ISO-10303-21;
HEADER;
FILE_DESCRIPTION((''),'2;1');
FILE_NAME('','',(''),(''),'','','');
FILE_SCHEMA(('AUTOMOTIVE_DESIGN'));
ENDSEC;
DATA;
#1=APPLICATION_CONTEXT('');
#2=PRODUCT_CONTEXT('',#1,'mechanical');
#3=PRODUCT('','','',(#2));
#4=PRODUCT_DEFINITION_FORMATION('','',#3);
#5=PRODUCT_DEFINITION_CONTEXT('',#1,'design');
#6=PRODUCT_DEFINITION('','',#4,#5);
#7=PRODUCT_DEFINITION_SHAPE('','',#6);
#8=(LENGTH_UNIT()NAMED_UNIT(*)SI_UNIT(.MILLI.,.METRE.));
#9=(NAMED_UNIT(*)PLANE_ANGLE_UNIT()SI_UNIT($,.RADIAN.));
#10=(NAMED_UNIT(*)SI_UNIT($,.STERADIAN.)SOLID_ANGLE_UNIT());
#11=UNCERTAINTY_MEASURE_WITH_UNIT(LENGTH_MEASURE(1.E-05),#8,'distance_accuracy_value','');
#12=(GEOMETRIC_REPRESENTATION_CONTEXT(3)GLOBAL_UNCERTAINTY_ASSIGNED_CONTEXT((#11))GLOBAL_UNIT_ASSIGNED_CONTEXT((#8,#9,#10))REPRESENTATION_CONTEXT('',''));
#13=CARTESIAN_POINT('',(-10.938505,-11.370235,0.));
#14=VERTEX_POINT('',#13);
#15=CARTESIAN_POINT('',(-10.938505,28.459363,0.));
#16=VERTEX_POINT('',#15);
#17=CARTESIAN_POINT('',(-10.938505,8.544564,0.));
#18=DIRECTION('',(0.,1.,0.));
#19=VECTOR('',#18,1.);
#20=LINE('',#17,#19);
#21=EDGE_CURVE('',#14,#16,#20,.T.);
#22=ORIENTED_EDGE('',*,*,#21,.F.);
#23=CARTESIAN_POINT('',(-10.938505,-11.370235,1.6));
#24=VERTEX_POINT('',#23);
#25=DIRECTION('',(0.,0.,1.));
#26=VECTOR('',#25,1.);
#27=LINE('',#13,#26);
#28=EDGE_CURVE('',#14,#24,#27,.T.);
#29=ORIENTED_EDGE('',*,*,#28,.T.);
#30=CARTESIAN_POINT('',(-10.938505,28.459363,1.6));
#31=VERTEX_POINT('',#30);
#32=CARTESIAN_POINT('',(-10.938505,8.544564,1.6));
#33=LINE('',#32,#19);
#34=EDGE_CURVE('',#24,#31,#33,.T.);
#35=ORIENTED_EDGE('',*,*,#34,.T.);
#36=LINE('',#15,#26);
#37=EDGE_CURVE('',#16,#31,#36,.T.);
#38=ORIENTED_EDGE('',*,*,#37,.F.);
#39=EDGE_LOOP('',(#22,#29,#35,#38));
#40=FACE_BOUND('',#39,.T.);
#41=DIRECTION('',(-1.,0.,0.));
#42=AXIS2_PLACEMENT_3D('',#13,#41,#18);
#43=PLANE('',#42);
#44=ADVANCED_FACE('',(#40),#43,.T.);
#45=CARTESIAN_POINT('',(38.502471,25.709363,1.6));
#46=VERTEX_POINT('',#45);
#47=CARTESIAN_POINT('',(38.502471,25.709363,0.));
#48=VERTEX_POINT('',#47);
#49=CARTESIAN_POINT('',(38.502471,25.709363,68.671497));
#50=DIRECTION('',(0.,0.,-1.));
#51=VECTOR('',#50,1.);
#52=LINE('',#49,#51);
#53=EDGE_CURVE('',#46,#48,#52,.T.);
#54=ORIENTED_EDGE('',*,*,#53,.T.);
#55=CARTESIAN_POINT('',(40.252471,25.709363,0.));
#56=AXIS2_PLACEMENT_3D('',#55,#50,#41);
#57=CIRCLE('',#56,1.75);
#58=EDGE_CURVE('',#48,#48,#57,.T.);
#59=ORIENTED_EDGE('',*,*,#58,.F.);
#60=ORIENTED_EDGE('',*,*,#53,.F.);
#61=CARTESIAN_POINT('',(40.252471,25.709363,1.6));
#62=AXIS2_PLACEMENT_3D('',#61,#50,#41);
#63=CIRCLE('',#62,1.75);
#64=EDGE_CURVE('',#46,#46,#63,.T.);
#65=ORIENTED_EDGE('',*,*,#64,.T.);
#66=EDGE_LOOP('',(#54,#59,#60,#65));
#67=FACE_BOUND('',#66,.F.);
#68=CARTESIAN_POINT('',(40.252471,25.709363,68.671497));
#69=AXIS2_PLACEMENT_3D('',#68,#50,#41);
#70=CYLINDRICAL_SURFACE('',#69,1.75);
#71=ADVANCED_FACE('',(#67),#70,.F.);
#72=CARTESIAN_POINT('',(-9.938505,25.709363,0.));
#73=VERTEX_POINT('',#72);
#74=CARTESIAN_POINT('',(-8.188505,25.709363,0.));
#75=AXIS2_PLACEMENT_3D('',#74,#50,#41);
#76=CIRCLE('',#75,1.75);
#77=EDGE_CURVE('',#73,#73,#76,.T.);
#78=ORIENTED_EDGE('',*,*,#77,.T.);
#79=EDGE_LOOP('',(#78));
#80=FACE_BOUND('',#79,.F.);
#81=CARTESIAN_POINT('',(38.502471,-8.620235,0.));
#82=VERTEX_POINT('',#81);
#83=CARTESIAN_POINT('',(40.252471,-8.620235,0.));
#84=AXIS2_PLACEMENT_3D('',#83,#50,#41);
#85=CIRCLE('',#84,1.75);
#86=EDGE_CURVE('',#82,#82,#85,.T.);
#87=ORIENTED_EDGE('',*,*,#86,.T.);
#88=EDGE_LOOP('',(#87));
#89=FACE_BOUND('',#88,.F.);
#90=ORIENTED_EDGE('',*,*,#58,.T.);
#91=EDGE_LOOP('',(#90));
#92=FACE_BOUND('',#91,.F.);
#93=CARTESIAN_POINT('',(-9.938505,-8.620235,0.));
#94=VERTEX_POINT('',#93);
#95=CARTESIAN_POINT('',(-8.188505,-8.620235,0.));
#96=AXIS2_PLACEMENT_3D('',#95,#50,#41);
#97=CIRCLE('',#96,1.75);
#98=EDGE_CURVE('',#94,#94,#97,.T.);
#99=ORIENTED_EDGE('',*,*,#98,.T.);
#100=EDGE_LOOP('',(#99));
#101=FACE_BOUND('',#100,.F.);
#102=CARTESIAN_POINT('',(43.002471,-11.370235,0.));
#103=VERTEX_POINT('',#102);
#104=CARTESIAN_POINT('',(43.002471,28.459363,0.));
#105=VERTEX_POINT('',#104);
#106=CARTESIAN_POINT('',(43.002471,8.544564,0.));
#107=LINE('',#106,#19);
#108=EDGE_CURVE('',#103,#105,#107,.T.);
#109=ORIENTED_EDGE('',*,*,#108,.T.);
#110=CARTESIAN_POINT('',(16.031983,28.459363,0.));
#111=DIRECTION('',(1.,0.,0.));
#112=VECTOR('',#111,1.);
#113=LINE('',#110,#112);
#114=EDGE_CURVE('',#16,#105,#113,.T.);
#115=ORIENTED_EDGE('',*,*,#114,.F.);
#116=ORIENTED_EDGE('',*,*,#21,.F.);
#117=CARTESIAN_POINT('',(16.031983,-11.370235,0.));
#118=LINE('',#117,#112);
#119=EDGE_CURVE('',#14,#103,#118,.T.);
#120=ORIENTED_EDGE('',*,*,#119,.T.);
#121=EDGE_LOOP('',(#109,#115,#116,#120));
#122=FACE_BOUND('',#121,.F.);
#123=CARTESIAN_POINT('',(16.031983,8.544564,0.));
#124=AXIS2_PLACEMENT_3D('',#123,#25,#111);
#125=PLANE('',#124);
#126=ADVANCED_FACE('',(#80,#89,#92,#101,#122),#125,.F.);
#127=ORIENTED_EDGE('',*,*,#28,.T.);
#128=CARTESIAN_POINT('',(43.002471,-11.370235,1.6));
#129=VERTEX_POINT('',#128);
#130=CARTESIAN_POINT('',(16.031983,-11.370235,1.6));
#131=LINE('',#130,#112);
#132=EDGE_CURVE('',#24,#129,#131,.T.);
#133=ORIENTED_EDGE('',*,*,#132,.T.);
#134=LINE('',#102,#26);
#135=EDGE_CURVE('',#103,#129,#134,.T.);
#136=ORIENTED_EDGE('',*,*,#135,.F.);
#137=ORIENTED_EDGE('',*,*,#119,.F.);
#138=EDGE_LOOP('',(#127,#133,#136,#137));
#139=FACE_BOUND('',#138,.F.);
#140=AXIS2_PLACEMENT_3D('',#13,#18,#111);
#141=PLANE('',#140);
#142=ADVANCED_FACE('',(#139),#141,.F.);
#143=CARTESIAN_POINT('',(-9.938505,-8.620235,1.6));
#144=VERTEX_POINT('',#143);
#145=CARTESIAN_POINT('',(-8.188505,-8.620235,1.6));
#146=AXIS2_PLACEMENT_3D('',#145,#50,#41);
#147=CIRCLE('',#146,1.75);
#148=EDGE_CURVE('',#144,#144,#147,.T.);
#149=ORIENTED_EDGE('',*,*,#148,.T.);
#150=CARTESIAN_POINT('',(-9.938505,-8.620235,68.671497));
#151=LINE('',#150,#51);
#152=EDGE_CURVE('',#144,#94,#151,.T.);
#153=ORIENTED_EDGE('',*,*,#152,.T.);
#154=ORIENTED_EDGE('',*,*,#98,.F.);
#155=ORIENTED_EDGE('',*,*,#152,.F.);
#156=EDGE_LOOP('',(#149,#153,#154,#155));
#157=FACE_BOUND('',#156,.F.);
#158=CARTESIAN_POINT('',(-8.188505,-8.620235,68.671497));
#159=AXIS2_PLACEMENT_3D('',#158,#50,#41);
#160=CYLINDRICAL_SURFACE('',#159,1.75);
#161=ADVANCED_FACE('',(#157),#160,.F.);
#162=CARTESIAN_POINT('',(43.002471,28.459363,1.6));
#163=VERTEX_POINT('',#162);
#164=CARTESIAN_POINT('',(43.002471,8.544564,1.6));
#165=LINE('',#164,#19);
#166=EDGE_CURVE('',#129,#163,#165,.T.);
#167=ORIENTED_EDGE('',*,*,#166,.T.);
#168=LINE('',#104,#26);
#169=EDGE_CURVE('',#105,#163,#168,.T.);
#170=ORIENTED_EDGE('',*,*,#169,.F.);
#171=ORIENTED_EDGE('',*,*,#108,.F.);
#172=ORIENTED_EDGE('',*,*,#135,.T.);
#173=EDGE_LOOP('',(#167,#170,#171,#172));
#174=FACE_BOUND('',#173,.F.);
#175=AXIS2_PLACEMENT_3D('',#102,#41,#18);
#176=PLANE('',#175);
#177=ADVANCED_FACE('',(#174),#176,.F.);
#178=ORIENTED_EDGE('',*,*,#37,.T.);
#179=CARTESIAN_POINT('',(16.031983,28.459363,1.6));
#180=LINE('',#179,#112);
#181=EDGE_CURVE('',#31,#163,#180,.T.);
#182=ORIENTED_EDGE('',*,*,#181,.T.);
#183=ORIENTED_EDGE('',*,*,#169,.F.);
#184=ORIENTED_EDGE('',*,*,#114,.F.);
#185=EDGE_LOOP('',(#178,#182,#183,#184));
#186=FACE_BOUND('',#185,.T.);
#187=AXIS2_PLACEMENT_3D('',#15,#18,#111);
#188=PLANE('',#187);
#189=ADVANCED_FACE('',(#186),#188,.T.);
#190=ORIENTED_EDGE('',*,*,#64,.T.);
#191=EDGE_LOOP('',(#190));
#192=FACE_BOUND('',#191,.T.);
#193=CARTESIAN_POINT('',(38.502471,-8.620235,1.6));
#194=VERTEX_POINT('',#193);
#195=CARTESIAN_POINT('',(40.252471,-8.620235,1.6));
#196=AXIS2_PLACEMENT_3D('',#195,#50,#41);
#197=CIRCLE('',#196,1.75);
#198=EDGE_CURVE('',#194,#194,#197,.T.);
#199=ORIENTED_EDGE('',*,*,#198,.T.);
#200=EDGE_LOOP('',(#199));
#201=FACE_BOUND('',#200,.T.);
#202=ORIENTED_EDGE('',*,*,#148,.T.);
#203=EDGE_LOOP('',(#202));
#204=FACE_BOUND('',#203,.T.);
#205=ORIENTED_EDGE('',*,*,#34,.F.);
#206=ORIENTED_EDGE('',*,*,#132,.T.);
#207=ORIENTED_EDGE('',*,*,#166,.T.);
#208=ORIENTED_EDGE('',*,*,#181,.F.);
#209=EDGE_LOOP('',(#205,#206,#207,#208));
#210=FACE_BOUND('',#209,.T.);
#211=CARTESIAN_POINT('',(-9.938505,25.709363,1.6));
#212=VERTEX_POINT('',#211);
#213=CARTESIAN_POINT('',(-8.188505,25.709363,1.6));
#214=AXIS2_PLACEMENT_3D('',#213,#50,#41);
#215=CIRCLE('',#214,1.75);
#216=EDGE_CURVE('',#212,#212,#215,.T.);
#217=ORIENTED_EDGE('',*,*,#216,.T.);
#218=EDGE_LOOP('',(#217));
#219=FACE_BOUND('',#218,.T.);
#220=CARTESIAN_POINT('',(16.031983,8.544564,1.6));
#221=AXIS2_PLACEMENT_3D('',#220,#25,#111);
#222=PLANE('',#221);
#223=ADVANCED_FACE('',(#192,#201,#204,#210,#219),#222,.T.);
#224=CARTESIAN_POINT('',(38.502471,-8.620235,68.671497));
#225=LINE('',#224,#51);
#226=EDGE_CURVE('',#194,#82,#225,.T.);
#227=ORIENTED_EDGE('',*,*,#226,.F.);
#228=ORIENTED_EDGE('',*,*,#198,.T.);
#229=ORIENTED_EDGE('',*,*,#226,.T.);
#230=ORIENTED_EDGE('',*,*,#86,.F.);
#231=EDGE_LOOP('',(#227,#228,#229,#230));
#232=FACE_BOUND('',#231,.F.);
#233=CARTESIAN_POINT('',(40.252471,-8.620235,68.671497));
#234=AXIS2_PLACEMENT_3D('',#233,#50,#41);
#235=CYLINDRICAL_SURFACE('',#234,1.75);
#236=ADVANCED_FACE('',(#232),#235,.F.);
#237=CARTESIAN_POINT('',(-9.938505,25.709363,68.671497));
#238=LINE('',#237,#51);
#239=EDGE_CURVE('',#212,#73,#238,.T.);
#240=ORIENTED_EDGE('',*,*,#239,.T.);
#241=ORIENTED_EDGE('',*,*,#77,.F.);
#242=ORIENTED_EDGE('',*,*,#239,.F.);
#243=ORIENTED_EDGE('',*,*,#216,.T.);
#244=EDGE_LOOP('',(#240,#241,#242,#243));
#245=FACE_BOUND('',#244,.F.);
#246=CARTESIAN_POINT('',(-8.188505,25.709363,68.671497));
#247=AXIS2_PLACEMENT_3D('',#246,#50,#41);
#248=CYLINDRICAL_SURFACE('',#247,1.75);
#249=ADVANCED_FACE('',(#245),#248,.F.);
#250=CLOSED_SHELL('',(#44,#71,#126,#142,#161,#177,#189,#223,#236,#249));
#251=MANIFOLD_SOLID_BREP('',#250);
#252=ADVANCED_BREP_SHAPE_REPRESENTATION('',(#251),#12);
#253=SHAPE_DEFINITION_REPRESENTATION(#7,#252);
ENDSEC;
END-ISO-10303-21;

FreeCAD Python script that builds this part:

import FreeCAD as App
import Part
import Sketcher

V = App.Vector


def add_polygon(sketch, points):
    """Adds a closed chain of lines whose ends are joined by coincident constraints."""
    first, n = sketch.GeometryCount, len(points)
    for a, b in zip(points, points[1:] + points[:1]):
        sketch.addGeometry(Part.LineSegment(App.Vector(*a, 0), App.Vector(*b, 0)), False)
    for i in range(n):
        sketch.addConstraint(Sketcher.Constraint("Coincident", first + i, 2, first + (i + 1) % n, 1))

doc = App.newDocument("Part")
body = doc.addObject("PartDesign::Body", "Body")

# Sketch on XY plane
sketch1 = body.newObject("Sketcher::SketchObject", "Sketch")
sketch1.AttachmentSupport = (doc.getObject("XY_Plane"), [""])
sketch1.MapMode = "FlatFace"
add_polygon(sketch1, [(-11, 28), (-11, -11), (43, -11), (43, 28)])  # lines 0-3
sketch1.addConstraint(Sketcher.Constraint("Vertical", 0))
sketch1.addConstraint(Sketcher.Constraint("Horizontal", 1))
sketch1.addConstraint(Sketcher.Constraint("Vertical", 2))
sketch1.addConstraint(Sketcher.Constraint("Horizontal", 3))
sketch1.addConstraint(Sketcher.Constraint("DistanceX", 1, 1, 1, 2, 53.940976))
sketch1.addConstraint(Sketcher.Constraint("DistanceY", 0, 2, 0, 1, 39.829598))
sketch1.addConstraint(Sketcher.Constraint("DistanceX", -1, 1, 1, 2, 43.002471))
sketch1.addConstraint(Sketcher.Constraint("DistanceY", 0, 2, -1, 1, 11.370235))
pad1 = body.newObject("PartDesign::Pad", "Pad")
pad1.Profile = sketch1
pad1.Length = 1.6

# Sketch on XY plane
sketch2 = body.newObject("Sketcher::SketchObject", "Sketch001")
sketch2.AttachmentSupport = (doc.getObject("XY_Plane"), [""])
sketch2.MapMode = "FlatFace"
sketch2.AttachmentOffset = App.Placement(V(0, 0, 1.6), App.Rotation())
sketch2.addGeometry(Part.Circle(V(-8.2, 25.7, 0), V(0, 0, 1), 1.8), False)
sketch2.addGeometry(Part.Circle(V(-8.2, -8.6, 0), V(0, 0, 1), 1.8), False)
sketch2.addGeometry(Part.Circle(V(40.3, -8.6, 0), V(0, 0, 1), 1.8), False)
sketch2.addGeometry(Part.Circle(V(40.3, 25.7, 0), V(0, 0, 1), 1.8), False)
sketch2.addConstraint(Sketcher.Constraint("Equal", 0, 1))
sketch2.addConstraint(Sketcher.Constraint("Equal", 1, 2))
sketch2.addConstraint(Sketcher.Constraint("Equal", 2, 3))
sketch2.addConstraint(Sketcher.Constraint("Horizontal", 1, 3, 2, 3))
sketch2.addConstraint(Sketcher.Constraint("Horizontal", 0, 3, 3, 3))
sketch2.addConstraint(Sketcher.Constraint("Vertical", 0, 3, 1, 3))
sketch2.addConstraint(Sketcher.Constraint("Vertical", 2, 3, 3, 3))
sketch2.addConstraint(Sketcher.Constraint("Diameter", 0, 3.5))
sketch2.addConstraint(Sketcher.Constraint("DistanceX", -1, 1, 2, 3, 40.252471))
sketch2.addConstraint(Sketcher.Constraint("DistanceX", 0, 3, -1, 1, 8.188505))
sketch2.addConstraint(Sketcher.Constraint("DistanceY", -1, 1, 0, 3, 25.709363))
sketch2.addConstraint(Sketcher.Constraint("DistanceY", 1, 3, -1, 1, 8.620235))
doc.recompute()
hole = body.newObject("PartDesign::Hole", "Hole")
hole.Profile = sketch2
hole.ThreadType = "None"
hole.Diameter = 3.5
hole.DepthType = "ThroughAll"

doc.recompute()
